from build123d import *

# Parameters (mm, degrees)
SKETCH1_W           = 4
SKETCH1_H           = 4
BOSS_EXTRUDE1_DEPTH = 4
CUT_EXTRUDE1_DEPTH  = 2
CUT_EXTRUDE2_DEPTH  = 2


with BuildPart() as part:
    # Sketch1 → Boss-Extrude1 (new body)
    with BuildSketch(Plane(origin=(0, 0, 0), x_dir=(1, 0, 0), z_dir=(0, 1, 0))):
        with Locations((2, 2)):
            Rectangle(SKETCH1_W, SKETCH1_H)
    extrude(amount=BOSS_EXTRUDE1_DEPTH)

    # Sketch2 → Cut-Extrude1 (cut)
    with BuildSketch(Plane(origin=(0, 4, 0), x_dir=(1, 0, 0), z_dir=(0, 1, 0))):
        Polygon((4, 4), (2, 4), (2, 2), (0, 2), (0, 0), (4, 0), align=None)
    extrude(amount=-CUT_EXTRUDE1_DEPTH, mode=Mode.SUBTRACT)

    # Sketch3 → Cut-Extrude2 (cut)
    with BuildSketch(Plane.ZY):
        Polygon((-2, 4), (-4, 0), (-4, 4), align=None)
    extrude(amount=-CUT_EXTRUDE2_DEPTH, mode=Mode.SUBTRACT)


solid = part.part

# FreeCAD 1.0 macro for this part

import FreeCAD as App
import Part
import Sketcher
from FreeCAD import Vector
Q = App.Units.Quantity

doc = App.newDocument("Part")
body = doc.addObject("PartDesign::Body", "Body")

# Sketch on XZ plane
sketch1 = body.newObject("Sketcher::SketchObject", "Sketch")
sketch1.AttachmentSupport = (doc.getObject("XZ_Plane"), [""])
sketch1.MapMode = "FlatFace"
sketch1.addGeometry([
    Part.LineSegment(Vector(0, -4, 0), Vector(0, 0, 0)),
    Part.LineSegment(Vector(0, 0, 0), Vector(4, 0, 0)),
    Part.LineSegment(Vector(4, 0, 0), Vector(4, -4, 0)),
    Part.LineSegment(Vector(4, -4, 0), Vector(0, -4, 0)),
], False)
sketch1.addConstraint([
    Sketcher.Constraint("Coincident", 0, 2, 1, 1),
    Sketcher.Constraint("Coincident", 1, 2, 2, 1),
    Sketcher.Constraint("Coincident", 2, 2, 3, 1),
    Sketcher.Constraint("Coincident", 3, 2, 0, 1),
    Sketcher.Constraint("Vertical", 0),
    Sketcher.Constraint("Horizontal", 1),
    Sketcher.Constraint("Vertical", 2),
    Sketcher.Constraint("Horizontal", 3),
    Sketcher.Constraint("Coincident", 0, 2, -1, 1),
    Sketcher.Constraint("Equal", 3, 0),
    Sketcher.Constraint("DistanceX", 1, 1, 1, 2, Q("4 mm")),
])
pad1 = body.newObject("PartDesign::Pad", "Pad")
pad1.Profile = sketch1
pad1.Length = 4
pad1.Reversed = True

# Sketch on XZ plane
sketch2 = body.newObject("Sketcher::SketchObject", "Sketch001")
sketch2.AttachmentSupport = (doc.getObject("XZ_Plane"), [""])
sketch2.MapMode = "FlatFace"
sketch2.AttachmentOffset = App.Placement(Vector(0, 0, -4), App.Rotation())
sketch2.addGeometry([
    Part.LineSegment(Vector(4, -4, 0), Vector(2, -4, 0)),  # 0
    Part.LineSegment(Vector(2, -4, 0), Vector(2, -2, 0)),  # 1
    Part.LineSegment(Vector(2, -2, 0), Vector(0, -2, 0)),  # 2
    Part.LineSegment(Vector(0, -2, 0), Vector(0, 0, 0)),  # 3
    Part.LineSegment(Vector(0, 0, 0), Vector(4, 0, 0)),  # 4
    Part.LineSegment(Vector(4, 0, 0), Vector(4, -4, 0)),  # 5
], False)
sketch2.addConstraint([
    Sketcher.Constraint("Coincident", 0, 2, 1, 1),
    Sketcher.Constraint("Coincident", 1, 2, 2, 1),
    Sketcher.Constraint("Coincident", 2, 2, 3, 1),
    Sketcher.Constraint("Coincident", 3, 2, 4, 1),
    Sketcher.Constraint("Coincident", 4, 2, 5, 1),
    Sketcher.Constraint("Coincident", 5, 2, 0, 1),
    Sketcher.Constraint("Horizontal", 0),
    Sketcher.Constraint("Vertical", 1),
    Sketcher.Constraint("Horizontal", 2),
    Sketcher.Constraint("Vertical", 3),
    Sketcher.Constraint("Horizontal", 4),
    Sketcher.Constraint("Vertical", 5),
    Sketcher.Constraint("Coincident", 3, 2, -1, 1),
    Sketcher.Constraint("Equal", 0, 2),
    Sketcher.Constraint("Equal", 2, 1),
    Sketcher.Constraint("Equal", 1, 3),
    Sketcher.Constraint("DistanceX", 0, 2, 0, 1, Q("2 mm")),
])
pocket1 = body.newObject("PartDesign::Pocket", "Pocket")
pocket1.Profile = sketch2
pocket1.Length = 2
pocket1.Reversed = True

# Sketch on YZ plane
sketch3 = body.newObject("Sketcher::SketchObject", "Sketch002")
sketch3.AttachmentSupport = (doc.getObject("YZ_Plane"), [""])
sketch3.MapMode = "FlatFace"
sketch3.addGeometry([
    Part.LineSegment(Vector(0, -4, 0), Vector(4, -2, 0)),
    Part.LineSegment(Vector(4, -2, 0), Vector(4, -4, 0)),
    Part.LineSegment(Vector(4, -4, 0), Vector(0, -4, 0)),
], False)
sketch3.addConstraint([
    Sketcher.Constraint("Coincident", 0, 2, 1, 1),
    Sketcher.Constraint("Coincident", 1, 2, 2, 1),
    Sketcher.Constraint("Coincident", 2, 2, 0, 1),
    Sketcher.Constraint("Vertical", 1),
    Sketcher.Constraint("Horizontal", 2),
    Sketcher.Constraint("PointOnObject", 2, 2, -2),
    Sketcher.Constraint("DistanceX", 2, 2, 2, 1, Q("4 mm")),
    Sketcher.Constraint("DistanceY", 1, 2, 1, 1, Q("2 mm")),
    Sketcher.Constraint("DistanceY", 0, 2, -1, 1, Q("2 mm")),
])
pocket2 = body.newObject("PartDesign::Pocket", "Pocket001")
pocket2.Profile = sketch3
pocket2.Length = 2
pocket2.Reversed = True

doc.recompute()
